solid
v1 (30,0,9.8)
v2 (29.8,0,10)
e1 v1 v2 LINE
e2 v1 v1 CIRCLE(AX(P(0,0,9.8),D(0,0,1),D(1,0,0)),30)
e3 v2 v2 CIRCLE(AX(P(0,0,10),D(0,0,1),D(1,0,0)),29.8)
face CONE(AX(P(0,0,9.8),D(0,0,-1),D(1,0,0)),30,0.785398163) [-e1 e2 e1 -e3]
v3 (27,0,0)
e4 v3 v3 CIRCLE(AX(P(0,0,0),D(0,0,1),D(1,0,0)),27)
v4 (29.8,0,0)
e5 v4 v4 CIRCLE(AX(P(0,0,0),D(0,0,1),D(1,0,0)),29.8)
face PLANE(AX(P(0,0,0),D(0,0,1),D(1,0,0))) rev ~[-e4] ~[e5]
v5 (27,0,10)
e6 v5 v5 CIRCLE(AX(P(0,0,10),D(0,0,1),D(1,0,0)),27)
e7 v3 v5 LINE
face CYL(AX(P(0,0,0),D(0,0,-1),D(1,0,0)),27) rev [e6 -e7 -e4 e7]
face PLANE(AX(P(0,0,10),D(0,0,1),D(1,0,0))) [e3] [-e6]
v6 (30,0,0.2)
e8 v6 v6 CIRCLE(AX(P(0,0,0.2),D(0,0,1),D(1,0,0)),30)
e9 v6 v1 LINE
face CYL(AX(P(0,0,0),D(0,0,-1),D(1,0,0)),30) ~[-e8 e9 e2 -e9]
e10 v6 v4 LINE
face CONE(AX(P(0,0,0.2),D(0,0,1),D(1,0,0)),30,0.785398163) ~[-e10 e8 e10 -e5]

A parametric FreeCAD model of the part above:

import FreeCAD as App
import Part
import Sketcher
from FreeCAD import Vector


def edges_at(feature, points):
    """Names of the edges that pass closest to the given points."""
    edges = feature.Shape.Edges
    near = lambda p: min(range(len(edges)), key=lambda i: edges[i].distToShape(Part.Vertex(*p))[0])
    return sorted({f"Edge{near(p) + 1}" for p in points})

doc = App.newDocument("Part")
body = doc.addObject("PartDesign::Body", "Body")

sketch1 = doc.addObject("Sketcher::SketchObject", "Sketch")
body.addObject(sketch1)
sketch1.AttachmentSupport = (doc.XY_Plane, [""])
sketch1.MapMode = "FlatFace"
sketch1.addGeometry([
    Part.Circle(Vector(0, 0, 0), Vector(0, 0, 1), 30),
    Part.Circle(Vector(0, 0, 0), Vector(0, 0, 1), 27),
], False)
sketch1.addConstraint([
    Sketcher.Constraint("Coincident", 0, 3, -1, 1),
    Sketcher.Constraint("Coincident", 1, 3, -1, 1),
    Sketcher.Constraint("Diameter", 0, 60.0),
    Sketcher.Constraint("Diameter", 1, 54.0),
])
pad1 = doc.addObject("PartDesign::Pad", "Pad")
body.addObject(pad1)
pad1.Profile = sketch1
pad1.Length = 10
doc.recompute()

chamfer = doc.addObject("PartDesign::Chamfer", "Chamfer")
body.addObject(chamfer)
chamfer.Base = (pad1, edges_at(pad1, [(-30, 0, 10), (-30, 0, 0)]))
chamfer.Size = 0.2

doc.recompute()
